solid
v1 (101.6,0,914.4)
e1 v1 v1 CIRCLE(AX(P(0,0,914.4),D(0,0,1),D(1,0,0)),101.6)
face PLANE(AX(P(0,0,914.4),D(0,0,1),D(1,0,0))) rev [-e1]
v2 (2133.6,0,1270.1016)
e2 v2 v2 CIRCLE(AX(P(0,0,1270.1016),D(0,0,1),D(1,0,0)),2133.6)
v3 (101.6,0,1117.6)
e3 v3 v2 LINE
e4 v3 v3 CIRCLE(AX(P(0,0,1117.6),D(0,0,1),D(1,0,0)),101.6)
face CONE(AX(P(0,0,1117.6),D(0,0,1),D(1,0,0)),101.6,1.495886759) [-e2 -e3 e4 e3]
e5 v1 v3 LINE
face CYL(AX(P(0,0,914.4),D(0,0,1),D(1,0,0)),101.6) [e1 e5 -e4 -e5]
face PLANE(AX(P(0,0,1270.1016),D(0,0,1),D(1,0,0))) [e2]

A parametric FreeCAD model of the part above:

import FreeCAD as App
import Part
import Sketcher
Q = App.Units.Quantity


def add_polygon(sketch, points):
    """Adds a closed chain of lines whose ends are joined by coincident constraints."""
    first, n = sketch.GeometryCount, len(points)
    for a, b in zip(points, points[1:] + points[:1]):
        sketch.addGeometry(Part.LineSegment(App.Vector(*a, 0), App.Vector(*b, 0)), False)
    for i in range(n):
        sketch.addConstraint(Sketcher.Constraint("Coincident", first + i, 2, first + (i + 1) % n, 1))

doc = App.newDocument("Part")
body = doc.addObject("PartDesign::Body", "Body")

# Sketch on XZ plane
sketch1 = doc.addObject("Sketcher::SketchObject", "Sketch")
body.addObject(sketch1)
sketch1.AttachmentSupport = (doc.XZ_Plane, [""])
sketch1.MapMode = "FlatFace"
add_polygon(sketch1, [(2134, 1270), (0, 1270), (0, 914), (102, 914), (102, 1118)])  # lines 0-4
sketch1.addConstraint([
    Sketcher.Constraint("Horizontal", 0),
    Sketcher.Constraint("Vertical", 1),
    Sketcher.Constraint("Horizontal", 2),
    Sketcher.Constraint("Vertical", 3),
    Sketcher.Constraint("PointOnObject", 0, 2, -2),
    Sketcher.Constraint("DistanceX", 0, 2, 0, 1, Q("84 in")),
    Sketcher.Constraint("DistanceX", 2, 1, 2, 2, Q("4 in")),
    Sketcher.Constraint("DistanceY", 3, 1, 3, 2, Q("8 in")),
    Sketcher.Constraint("DistanceY", -1, 1, 1, 2, Q("36 in")),
    Sketcher.Constraint("DistanceY", 1, 2, 1, 1, Q("14.004 in")),
])
revolution = doc.addObject("PartDesign::Revolution", "Revolution")
body.addObject(revolution)
revolution.Profile = sketch1
revolution.ReferenceAxis = (sketch1, ["V_Axis"])
revolution.Angle = 360

doc.recompute()
